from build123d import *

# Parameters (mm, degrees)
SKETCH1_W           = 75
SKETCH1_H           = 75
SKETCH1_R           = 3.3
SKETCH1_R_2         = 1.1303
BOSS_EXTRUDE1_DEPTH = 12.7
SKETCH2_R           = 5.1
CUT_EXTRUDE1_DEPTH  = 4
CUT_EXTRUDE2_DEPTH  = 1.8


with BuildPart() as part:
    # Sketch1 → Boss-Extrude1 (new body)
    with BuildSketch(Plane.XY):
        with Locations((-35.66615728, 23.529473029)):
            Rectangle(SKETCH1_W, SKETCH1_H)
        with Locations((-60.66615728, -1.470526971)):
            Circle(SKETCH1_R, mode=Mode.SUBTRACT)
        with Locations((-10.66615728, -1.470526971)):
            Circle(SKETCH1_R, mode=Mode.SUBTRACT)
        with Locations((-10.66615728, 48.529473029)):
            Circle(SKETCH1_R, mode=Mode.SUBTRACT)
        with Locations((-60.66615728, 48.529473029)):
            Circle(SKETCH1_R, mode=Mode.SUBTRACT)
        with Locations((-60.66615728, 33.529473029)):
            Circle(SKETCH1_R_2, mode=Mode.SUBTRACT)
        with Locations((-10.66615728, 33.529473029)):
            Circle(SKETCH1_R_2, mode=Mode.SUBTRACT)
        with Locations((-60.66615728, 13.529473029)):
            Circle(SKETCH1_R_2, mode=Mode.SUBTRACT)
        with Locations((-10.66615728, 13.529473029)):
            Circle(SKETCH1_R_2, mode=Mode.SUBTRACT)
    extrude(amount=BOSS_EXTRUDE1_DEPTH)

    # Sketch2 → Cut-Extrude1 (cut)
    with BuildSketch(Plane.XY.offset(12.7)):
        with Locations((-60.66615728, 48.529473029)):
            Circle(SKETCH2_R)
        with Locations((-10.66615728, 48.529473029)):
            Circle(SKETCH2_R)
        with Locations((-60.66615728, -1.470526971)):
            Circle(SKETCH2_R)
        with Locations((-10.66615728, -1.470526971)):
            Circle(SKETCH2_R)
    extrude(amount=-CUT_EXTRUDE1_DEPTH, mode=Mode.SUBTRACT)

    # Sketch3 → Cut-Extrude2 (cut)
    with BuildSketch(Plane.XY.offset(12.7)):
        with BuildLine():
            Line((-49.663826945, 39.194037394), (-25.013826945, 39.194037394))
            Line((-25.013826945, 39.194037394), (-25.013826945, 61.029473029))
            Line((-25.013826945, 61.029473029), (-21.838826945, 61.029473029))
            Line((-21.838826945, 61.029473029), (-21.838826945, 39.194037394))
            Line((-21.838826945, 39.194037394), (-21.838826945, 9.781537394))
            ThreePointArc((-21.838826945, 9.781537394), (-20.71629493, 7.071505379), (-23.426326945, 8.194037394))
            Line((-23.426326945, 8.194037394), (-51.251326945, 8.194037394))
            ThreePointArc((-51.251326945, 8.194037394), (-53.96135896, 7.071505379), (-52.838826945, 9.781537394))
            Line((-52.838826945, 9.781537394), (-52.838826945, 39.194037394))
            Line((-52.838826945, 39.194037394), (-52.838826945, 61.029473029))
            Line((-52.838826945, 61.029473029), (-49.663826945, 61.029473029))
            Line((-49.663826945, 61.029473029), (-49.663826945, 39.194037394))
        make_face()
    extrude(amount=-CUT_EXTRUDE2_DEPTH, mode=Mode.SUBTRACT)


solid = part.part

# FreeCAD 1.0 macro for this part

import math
import FreeCAD as App
import Part
import Sketcher
from FreeCAD import Vector
Q = App.Units.Quantity

doc = App.newDocument("Part")
body = doc.addObject("PartDesign::Body", "Body")

# Sketch on XY plane
sketch1 = body.newObject("Sketcher::SketchObject", "Sketch")
sketch1.AttachmentSupport = (doc.getObject("XY_Plane"), [""])
sketch1.MapMode = "FlatFace"
sketch1.addGeometry([
    Part.LineSegment(Vector(-73.2, 61, 0), Vector(-73.2, -14, 0)),  # 0
    Part.LineSegment(Vector(-73.2, -14, 0), Vector(1.8, -14, 0)),  # 1
    Part.LineSegment(Vector(1.8, -14, 0), Vector(1.8, 61, 0)),  # 2
    Part.LineSegment(Vector(1.8, 61, 0), Vector(-73.2, 61, 0)),  # 3
    Part.Circle(Vector(-60.7, -1.5, 0), Vector(0, 0, 1), 3.3),  # 4
    Part.Circle(Vector(-60.7, 13.5, 0), Vector(0, 0, 1), 1.1),  # 5
    Part.Circle(Vector(-10.7, -1.5, 0), Vector(0, 0, 1), 3.3),  # 6
    Part.Circle(Vector(-10.7, 13.5, 0), Vector(0, 0, 1), 1.1),  # 7
    Part.Circle(Vector(-60.7, 33.5, 0), Vector(0, 0, 1), 1.1),  # 8
    Part.Circle(Vector(-60.7, 48.5, 0), Vector(0, 0, 1), 3.3),  # 9
    Part.Circle(Vector(-10.7, 33.5, 0), Vector(0, 0, 1), 1.1),  # 10
    Part.Circle(Vector(-10.7, 48.5, 0), Vector(0, 0, 1), 3.3),  # 11
], False)
sketch1.addConstraint([
    Sketcher.Constraint("Coincident", 0, 2, 1, 1),
    Sketcher.Constraint("Coincident", 1, 2, 2, 1),
    Sketcher.Constraint("Coincident", 2, 2, 3, 1),
    Sketcher.Constraint("Coincident", 3, 2, 0, 1),
    Sketcher.Constraint("Vertical", 0),
    Sketcher.Constraint("Horizontal", 1),
    Sketcher.Constraint("Vertical", 2),
    Sketcher.Constraint("Horizontal", 3),
    Sketcher.Constraint("Equal", 4, 6),
    Sketcher.Constraint("Equal", 5, 7),
    Sketcher.Constraint("Equal", 7, 8),
    Sketcher.Constraint("Equal", 6, 9),
    Sketcher.Constraint("Equal", 8, 10),
    Sketcher.Constraint("Equal", 9, 11),
    Sketcher.Constraint("Horizontal", 4, 3, 6, 3),
    Sketcher.Constraint("Horizontal", 5, 3, 7, 3),
    Sketcher.Constraint("Horizontal", 8, 3, 10, 3),
    Sketcher.Constraint("Horizontal", 9, 3, 11, 3),
    Sketcher.Constraint("Vertical", 4, 3, 5, 3),
    Sketcher.Constraint("Vertical", 6, 3, 7, 3),
    Sketcher.Constraint("Vertical", 5, 3, 8, 3),
    Sketcher.Constraint("Vertical", 8, 3, 9, 3),
    Sketcher.Constraint("Vertical", 7, 3, 10, 3),
    Sketcher.Constraint("Vertical", 10, 3, 11, 3),
    Sketcher.Constraint("Equal", 3, 0),
    Sketcher.Constraint("Diameter", 4, Q("6.6 mm")),
    Sketcher.Constraint("DistanceX", 1, 1, 1, 2, Q("75 mm")),
    Sketcher.Constraint("DistanceY", 4, 3, 5, 3, Q("15 mm")),
    Sketcher.Constraint("DistanceX", 4, 3, 6, 3, Q("50 mm")),
    Sketcher.Constraint("DistanceY", 5, 3, 8, 3, Q("20 mm")),
    Sketcher.Constraint("DistanceY", 8, 3, 9, 3, Q("15 mm")),
    Sketcher.Constraint("Diameter", 5, Q("2.2606 mm")),
    Sketcher.Constraint("DistanceX", 0, 2, 4, 3, Q("12.5 mm")),
    Sketcher.Constraint("DistanceY", 0, 2, 4, 3, Q("12.5 mm")),
    Sketcher.Constraint("DistanceX", 4, 3, -1, 1, Q("60.666157 mm")),
    Sketcher.Constraint("DistanceY", 4, 3, -1, 1, Q("1.470527 mm")),
])
pad1 = body.newObject("PartDesign::Pad", "Pad")
pad1.Profile = sketch1
pad1.Length = 12.7

# Sketch on XY plane
sketch2 = body.newObject("Sketcher::SketchObject", "Sketch001")
sketch2.AttachmentSupport = (doc.getObject("XY_Plane"), [""])
sketch2.MapMode = "FlatFace"
sketch2.AttachmentOffset = App.Placement(Vector(0, 0, 12.7), App.Rotation())
sketch2.addGeometry([
    Part.Circle(Vector(-61, 49, 0), Vector(0, 0, 1), 5),
    Part.Circle(Vector(-11, 49, 0), Vector(0, 0, 1), 5),
    Part.Circle(Vector(-61, -1, 0), Vector(0, 0, 1), 5),
    Part.Circle(Vector(-11, -1, 0), Vector(0, 0, 1), 5),
], False)
sketch2.addConstraint([
    Sketcher.Constraint("Equal", 0, 1),
    Sketcher.Constraint("Equal", 1, 2),
    Sketcher.Constraint("Equal", 2, 3),
    Sketcher.Constraint("Horizontal", 0, 3, 1, 3),
    Sketcher.Constraint("Horizontal", 2, 3, 3, 3),
    Sketcher.Constraint("Vertical", 0, 3, 2, 3),
    Sketcher.Constraint("Vertical", 1, 3, 3, 3),
    Sketcher.Constraint("Diameter", 0, Q("10.2 mm")),
    Sketcher.Constraint("DistanceX", 0, 3, 1, 3, Q("50 mm")),
    Sketcher.Constraint("DistanceY", 2, 3, 0, 3, Q("50 mm")),
    Sketcher.Constraint("DistanceX", 0, 3, -1, 1, Q("60.666157 mm")),
    Sketcher.Constraint("DistanceY", -1, 1, 0, 3, Q("48.529473 mm")),
])
pocket1 = body.newObject("PartDesign::Pocket", "Pocket")
pocket1.Profile = sketch2
pocket1.Length = 4

# Sketch on XY plane
sketch3 = body.newObject("Sketcher::SketchObject", "Sketch002")
sketch3.AttachmentSupport = (doc.getObject("XY_Plane"), [""])
sketch3.MapMode = "FlatFace"
sketch3.AttachmentOffset = App.Placement(Vector(0, 0, 12.7), App.Rotation())
sketch3.addGeometry([
    Part.LineSegment(Vector(-25, 39.2, 0), Vector(-49.7, 39.2, 0)),  # 0
    Part.LineSegment(Vector(-49.7, 39.2, 0), Vector(-49.7, 61, 0)),  # 1
    Part.LineSegment(Vector(-49.7, 61, 0), Vector(-52.8, 61, 0)),  # 2
    Part.LineSegment(Vector(-52.8, 61, 0), Vector(-52.8, 9.8, 0)),  # 3
    Part.ArcOfCircle(Part.Circle(Vector(-52.8, 8.2, 0), Vector(0, 0, 1), 1.6), math.radians(90), math.radians(360)),  # 4
    Part.LineSegment(Vector(-51.3, 8.2, 0), Vector(-23.4, 8.2, 0)),  # 5
    Part.ArcOfCircle(Part.Circle(Vector(-21.8, 8.2, 0), Vector(0, 0, 1), 1.6), math.radians(180), math.radians(450)),  # 6
    Part.LineSegment(Vector(-21.8, 9.8, 0), Vector(-21.8, 61, 0)),  # 7
    Part.LineSegment(Vector(-21.8, 61, 0), Vector(-25, 61, 0)),  # 8
    Part.LineSegment(Vector(-25, 61, 0), Vector(-25, 39.2, 0)),  # 9
], False)
sketch3.addConstraint([
    Sketcher.Constraint("Coincident", 0, 2, 1, 1),
    Sketcher.Constraint("Coincident", 1, 2, 2, 1),
    Sketcher.Constraint("Coincident", 2, 2, 3, 1),
    Sketcher.Constraint("Coincident", 3, 2, 4, 1),
    Sketcher.Constraint("Coincident", 4, 2, 5, 1),
    Sketcher.Constraint("Coincident", 5, 2, 6, 1),
    Sketcher.Constraint("Coincident", 6, 2, 7, 1),
    Sketcher.Constraint("Coincident", 7, 2, 8, 1),
    Sketcher.Constraint("Coincident", 8, 2, 9, 1),
    Sketcher.Constraint("Coincident", 9, 2, 0, 1),
    Sketcher.Constraint("Horizontal", 0),
    Sketcher.Constraint("Vertical", 1),
    Sketcher.Constraint("Horizontal", 2),
    Sketcher.Constraint("Vertical", 3),
    Sketcher.Constraint("Horizontal", 5),
    Sketcher.Constraint("Vertical", 7),
    Sketcher.Constraint("Horizontal", 8),
    Sketcher.Constraint("Vertical", 9),
    Sketcher.Constraint("Equal", 4, 6),
    Sketcher.Constraint("Horizontal", 4, 3, 6, 3),
    Sketcher.Constraint("Horizontal", 6, 3, 4, 2),
    Sketcher.Constraint("Horizontal", 2, 2, 7, 2),
    Sketcher.Constraint("Vertical", 4, 3, 2, 2),
    Sketcher.Constraint("Equal", 2, 8),
    Sketcher.Constraint("DistanceX", 4, 3, 6, 3, Q("31 mm")),
    Sketcher.Constraint("DistanceY", 4, 3, 0, 2, Q("31 mm")),
    Sketcher.Constraint("DistanceX", 3, 2, 6, 2, Q("31 mm")),
    Sketcher.Constraint("DistanceX", 0, 2, 0, 1, Q("24.65 mm")),
    Sketcher.Constraint("Radius", 4, Q("1.5875 mm")),
    Sketcher.Constraint("DistanceY", 1, 1, 1, 2, Q("21.835436 mm")),
    Sketcher.Constraint("DistanceX", 4, 3, -1, 1, Q("52.838827 mm")),
    Sketcher.Constraint("DistanceY", -1, 1, 4, 3, Q("8.194037 mm")),
])
pocket2 = body.newObject("PartDesign::Pocket", "Pocket001")
pocket2.Profile = sketch3
pocket2.Length = 1.8

doc.recompute()
